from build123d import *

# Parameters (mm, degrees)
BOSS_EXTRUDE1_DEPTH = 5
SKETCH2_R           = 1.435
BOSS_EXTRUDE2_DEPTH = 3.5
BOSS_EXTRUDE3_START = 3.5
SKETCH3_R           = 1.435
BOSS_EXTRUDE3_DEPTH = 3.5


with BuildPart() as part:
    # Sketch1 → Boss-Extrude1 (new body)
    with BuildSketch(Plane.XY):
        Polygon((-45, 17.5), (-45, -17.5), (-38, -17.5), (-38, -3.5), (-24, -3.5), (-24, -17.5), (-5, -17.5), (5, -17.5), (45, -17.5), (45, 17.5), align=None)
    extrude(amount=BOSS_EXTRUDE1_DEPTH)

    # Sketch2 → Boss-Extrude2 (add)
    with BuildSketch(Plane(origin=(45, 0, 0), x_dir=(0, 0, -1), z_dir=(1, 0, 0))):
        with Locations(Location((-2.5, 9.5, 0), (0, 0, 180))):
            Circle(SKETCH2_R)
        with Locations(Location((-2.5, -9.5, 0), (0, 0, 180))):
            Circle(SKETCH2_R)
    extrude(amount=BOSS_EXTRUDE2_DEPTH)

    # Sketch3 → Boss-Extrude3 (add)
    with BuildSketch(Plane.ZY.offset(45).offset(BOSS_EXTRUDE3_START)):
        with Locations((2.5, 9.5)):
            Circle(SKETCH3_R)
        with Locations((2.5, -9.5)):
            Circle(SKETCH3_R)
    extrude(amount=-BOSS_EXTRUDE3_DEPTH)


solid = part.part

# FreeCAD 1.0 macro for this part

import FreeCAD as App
import Part
import Sketcher


def add_polygon(sketch, points):
    """Adds a closed chain of lines whose ends are joined by coincident constraints."""
    first, n = sketch.GeometryCount, len(points)
    for a, b in zip(points, points[1:] + points[:1]):
        sketch.addGeometry(Part.LineSegment(App.Vector(*a, 0), App.Vector(*b, 0)), False)
    for i in range(n):
        sketch.addConstraint(Sketcher.Constraint("Coincident", first + i, 2, first + (i + 1) % n, 1))

doc = App.newDocument("Part")
body = doc.addObject("PartDesign::Body", "Body")

sketch1 = body.newObject("Sketcher::SketchObject", "Sketch")
sketch1.AttachmentSupport = (doc.getObject("XY_Plane"), [""])
sketch1.MapMode = "FlatFace"
add_polygon(sketch1, [(-45, 18), (-45, -18), (-38, -18), (-38, -4), (-24, -4), (-24, -18), (45, -18), (45, 18)])
sketch1.addConstraint([
    Sketcher.Constraint("Vertical", 0),
    Sketcher.Constraint("Horizontal", 1),
    Sketcher.Constraint("Vertical", 2),
    Sketcher.Constraint("Horizontal", 3),
    Sketcher.Constraint("Vertical", 4),
    Sketcher.Constraint("Horizontal", 5),
    Sketcher.Constraint("Vertical", 6),
    Sketcher.Constraint("Horizontal", 7),
    Sketcher.Constraint("Symmetric", 0, 2, 6, 2, -1, 1),
    Sketcher.Constraint("Horizontal", 1, 2, 4, 2),
    Sketcher.Constraint("Equal", 3, 2),
    Sketcher.Constraint("DistanceX", 1, 1, 1, 2, 7.0),
    Sketcher.Constraint("DistanceX", 3, 1, 3, 2, 14.0),
    Sketcher.Constraint("DistanceX", 5, 1, 5, 2, 69.0),
    Sketcher.Constraint("DistanceY", 0, 2, 0, 1, 35.0),
])
pad1 = body.newObject("PartDesign::Pad", "Pad")
pad1.Profile = sketch1
pad1.Length = 5

sketch2 = body.newObject("Sketcher::SketchObject", "Sketch001")
sketch2.AttachmentSupport = (doc.getObject("YZ_Plane"), [""])
sketch2.MapMode = "FlatFace"
sketch2.AttachmentOffset = App.Placement(App.Vector(0, 0, 45), App.Rotation())
sketch2.addGeometry([
    Part.Circle(App.Vector(9.5, 2.5, 0), App.Vector(0, 0, 1), 1.4),
    Part.Circle(App.Vector(-9.5, 2.5, 0), App.Vector(0, 0, 1), 1.4),
], False)
sketch2.addConstraint([
    Sketcher.Constraint("Equal", 0, 1),
    Sketcher.Constraint("Symmetric", 0, 3, 1, 3, -2),
    Sketcher.Constraint("Diameter", 0, 2.87),
    Sketcher.Constraint("DistanceX", 1, 3, 0, 3, 19.0),
    Sketcher.Constraint("DistanceY", -1, 1, 0, 3, 2.5),
])
pad2 = body.newObject("PartDesign::Pad", "Pad001")
pad2.Profile = sketch2
pad2.Length = 3.5

sketch3 = body.newObject("Sketcher::SketchObject", "Sketch002")
sketch3.AttachmentSupport = (doc.getObject("YZ_Plane"), [""])
sketch3.MapMode = "FlatFace"
sketch3.AttachmentOffset = App.Placement(App.Vector(0, 0, -48.5), App.Rotation())
sketch3.addGeometry([
    Part.Circle(App.Vector(9.5, 2.5, 0), App.Vector(0, 0, 1), 1.4),
    Part.Circle(App.Vector(-9.5, 2.5, 0), App.Vector(0, 0, 1), 1.4),
], False)
sketch3.addConstraint([
    Sketcher.Constraint("Equal", 0, 1),
    Sketcher.Constraint("Symmetric", 0, 3, 1, 3, -2),
    Sketcher.Constraint("Diameter", 0, 2.87),
    Sketcher.Constraint("DistanceX", 1, 3, 0, 3, 19.0),
    Sketcher.Constraint("DistanceY", -1, 1, 0, 3, 2.5),
])
pad3 = body.newObject("PartDesign::Pad", "Pad002")
pad3.Profile = sketch3
pad3.Length = 3.5

doc.recompute()
